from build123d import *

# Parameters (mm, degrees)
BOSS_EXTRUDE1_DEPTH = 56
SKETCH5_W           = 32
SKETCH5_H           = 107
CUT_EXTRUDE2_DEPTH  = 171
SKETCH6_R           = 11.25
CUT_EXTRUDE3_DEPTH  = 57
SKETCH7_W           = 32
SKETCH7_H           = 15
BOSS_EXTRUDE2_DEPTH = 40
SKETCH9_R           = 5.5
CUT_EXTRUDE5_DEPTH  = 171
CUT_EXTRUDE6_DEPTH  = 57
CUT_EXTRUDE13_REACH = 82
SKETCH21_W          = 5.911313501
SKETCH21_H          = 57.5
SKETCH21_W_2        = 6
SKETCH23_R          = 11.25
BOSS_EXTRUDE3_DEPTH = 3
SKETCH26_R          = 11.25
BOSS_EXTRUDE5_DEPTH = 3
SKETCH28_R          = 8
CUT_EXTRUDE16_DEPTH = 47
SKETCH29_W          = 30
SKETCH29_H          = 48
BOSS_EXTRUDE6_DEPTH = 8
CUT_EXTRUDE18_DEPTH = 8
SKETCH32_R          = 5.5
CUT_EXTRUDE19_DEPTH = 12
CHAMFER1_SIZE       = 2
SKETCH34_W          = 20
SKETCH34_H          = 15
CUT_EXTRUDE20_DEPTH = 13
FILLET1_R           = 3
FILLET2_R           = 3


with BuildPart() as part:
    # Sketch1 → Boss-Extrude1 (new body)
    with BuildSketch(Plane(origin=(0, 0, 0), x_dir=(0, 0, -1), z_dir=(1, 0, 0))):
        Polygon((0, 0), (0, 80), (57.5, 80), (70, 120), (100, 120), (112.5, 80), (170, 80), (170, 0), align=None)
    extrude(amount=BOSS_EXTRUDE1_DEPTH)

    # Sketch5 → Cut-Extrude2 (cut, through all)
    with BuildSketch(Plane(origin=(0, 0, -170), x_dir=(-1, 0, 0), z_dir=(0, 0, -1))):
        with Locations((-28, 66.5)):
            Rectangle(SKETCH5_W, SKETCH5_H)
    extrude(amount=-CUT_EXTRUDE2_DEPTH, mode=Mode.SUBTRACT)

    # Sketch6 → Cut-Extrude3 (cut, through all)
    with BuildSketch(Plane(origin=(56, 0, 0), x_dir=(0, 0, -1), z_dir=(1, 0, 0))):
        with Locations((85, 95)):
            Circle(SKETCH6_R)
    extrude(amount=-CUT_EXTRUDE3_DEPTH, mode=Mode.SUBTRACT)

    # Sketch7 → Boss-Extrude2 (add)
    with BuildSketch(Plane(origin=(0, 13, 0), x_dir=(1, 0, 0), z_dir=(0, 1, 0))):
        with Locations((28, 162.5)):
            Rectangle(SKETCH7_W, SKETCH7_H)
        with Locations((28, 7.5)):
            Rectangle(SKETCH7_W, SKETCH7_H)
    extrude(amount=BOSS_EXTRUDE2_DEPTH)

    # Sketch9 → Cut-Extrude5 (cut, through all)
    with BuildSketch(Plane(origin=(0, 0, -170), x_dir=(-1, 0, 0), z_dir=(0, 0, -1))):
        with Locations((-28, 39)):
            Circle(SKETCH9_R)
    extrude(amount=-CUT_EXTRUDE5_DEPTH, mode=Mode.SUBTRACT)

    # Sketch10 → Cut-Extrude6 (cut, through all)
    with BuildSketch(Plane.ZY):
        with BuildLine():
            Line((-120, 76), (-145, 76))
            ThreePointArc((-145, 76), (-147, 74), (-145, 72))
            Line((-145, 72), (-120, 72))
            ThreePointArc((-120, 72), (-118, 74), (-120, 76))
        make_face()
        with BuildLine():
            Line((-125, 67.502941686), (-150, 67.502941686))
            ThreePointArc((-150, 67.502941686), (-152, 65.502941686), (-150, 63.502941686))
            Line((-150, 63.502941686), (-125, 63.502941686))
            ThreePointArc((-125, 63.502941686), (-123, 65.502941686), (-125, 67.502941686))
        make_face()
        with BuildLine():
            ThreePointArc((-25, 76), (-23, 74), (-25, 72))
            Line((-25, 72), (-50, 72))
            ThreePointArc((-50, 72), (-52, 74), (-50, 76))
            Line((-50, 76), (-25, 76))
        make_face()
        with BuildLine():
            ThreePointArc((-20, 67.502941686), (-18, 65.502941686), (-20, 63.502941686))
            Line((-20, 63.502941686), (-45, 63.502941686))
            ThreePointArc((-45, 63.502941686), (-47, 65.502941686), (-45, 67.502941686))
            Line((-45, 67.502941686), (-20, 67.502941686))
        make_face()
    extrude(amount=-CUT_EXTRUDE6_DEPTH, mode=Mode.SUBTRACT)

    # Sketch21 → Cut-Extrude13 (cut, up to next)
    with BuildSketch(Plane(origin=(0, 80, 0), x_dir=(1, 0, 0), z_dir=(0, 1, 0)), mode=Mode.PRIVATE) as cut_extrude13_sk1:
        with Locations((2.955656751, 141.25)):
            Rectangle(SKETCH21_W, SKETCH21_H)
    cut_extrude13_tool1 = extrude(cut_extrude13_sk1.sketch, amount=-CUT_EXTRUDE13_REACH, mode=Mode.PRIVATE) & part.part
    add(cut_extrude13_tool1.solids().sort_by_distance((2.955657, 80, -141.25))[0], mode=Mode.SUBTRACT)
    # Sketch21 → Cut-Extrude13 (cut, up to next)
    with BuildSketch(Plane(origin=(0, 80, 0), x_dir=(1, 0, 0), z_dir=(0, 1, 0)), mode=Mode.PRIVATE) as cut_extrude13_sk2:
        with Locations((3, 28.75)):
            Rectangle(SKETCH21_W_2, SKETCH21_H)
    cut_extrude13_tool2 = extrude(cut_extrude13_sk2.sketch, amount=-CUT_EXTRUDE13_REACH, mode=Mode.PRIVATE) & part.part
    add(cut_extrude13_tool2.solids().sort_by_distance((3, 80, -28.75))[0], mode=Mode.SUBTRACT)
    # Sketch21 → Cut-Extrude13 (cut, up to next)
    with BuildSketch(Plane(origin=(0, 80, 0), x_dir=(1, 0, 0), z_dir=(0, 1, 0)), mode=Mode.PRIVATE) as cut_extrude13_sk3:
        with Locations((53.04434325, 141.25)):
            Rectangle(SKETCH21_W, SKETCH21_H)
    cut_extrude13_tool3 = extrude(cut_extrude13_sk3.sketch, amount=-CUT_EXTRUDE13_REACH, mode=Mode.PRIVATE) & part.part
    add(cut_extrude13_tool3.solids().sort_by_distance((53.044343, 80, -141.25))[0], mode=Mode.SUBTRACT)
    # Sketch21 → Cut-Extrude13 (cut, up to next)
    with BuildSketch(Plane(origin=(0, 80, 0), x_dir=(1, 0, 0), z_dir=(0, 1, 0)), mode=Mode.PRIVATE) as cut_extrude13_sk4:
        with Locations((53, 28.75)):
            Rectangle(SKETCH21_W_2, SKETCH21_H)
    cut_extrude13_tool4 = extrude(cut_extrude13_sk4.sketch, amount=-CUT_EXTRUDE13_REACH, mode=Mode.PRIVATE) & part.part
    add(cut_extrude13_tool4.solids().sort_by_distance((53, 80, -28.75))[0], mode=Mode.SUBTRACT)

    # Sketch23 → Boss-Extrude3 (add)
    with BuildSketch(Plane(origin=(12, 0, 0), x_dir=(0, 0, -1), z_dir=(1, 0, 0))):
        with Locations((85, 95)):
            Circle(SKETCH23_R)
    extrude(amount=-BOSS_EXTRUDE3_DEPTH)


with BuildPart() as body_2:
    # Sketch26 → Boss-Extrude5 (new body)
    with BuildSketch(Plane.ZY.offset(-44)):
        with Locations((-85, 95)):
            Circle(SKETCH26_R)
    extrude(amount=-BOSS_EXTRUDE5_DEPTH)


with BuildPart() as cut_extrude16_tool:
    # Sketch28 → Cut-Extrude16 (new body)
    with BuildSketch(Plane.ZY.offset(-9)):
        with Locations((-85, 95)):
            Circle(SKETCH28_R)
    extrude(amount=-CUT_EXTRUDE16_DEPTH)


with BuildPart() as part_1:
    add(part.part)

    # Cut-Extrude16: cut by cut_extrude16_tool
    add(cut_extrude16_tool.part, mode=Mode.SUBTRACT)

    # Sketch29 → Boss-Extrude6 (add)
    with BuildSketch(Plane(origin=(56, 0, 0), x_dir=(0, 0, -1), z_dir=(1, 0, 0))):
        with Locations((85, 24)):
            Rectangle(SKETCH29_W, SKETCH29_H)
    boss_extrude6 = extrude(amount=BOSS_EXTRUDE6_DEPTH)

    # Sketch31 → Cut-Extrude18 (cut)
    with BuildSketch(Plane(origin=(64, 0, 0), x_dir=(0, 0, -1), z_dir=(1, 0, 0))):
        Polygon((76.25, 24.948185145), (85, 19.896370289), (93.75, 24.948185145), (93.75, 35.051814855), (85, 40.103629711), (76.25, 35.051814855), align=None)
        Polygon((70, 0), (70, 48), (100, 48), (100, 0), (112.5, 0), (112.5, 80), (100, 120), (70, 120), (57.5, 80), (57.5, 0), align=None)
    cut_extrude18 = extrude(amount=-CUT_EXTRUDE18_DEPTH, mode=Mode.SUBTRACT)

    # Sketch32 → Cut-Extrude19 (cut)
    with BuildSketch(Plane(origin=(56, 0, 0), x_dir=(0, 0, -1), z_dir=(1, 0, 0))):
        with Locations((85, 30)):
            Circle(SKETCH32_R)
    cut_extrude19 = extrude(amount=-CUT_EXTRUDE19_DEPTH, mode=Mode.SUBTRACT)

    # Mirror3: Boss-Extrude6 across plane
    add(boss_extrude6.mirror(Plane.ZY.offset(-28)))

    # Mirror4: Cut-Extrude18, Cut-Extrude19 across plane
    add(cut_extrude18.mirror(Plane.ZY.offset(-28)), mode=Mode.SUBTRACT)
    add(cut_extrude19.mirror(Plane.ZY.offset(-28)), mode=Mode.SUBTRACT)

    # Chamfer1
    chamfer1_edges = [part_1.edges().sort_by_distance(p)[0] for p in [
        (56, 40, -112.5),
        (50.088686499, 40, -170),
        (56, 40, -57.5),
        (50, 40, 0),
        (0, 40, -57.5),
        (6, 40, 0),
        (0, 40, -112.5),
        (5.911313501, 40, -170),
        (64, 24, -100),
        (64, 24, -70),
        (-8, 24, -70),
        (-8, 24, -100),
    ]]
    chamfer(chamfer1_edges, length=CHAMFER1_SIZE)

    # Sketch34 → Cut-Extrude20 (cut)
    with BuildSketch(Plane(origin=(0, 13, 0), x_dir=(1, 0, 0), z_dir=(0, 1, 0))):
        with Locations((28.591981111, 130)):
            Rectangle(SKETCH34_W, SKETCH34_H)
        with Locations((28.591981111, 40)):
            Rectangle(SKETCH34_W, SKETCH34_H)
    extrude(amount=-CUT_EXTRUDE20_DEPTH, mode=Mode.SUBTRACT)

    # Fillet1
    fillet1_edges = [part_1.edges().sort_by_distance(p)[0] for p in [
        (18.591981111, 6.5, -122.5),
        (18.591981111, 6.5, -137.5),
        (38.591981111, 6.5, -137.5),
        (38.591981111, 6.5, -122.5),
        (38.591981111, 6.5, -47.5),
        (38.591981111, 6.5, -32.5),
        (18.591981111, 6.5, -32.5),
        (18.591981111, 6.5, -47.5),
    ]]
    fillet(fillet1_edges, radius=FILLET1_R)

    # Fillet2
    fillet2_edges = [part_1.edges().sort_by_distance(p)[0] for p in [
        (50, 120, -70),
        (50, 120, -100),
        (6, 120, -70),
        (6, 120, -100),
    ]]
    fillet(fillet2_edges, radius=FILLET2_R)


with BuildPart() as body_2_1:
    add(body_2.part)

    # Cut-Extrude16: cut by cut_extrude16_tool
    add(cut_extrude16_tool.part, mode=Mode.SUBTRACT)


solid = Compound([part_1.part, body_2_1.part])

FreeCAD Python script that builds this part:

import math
import FreeCAD as App
import Part
import Sketcher
from FreeCAD import Vector
Q = App.Units.Quantity


def edges_at(feature, points):
    """Names of the edges that pass closest to the given points."""
    edges = feature.Shape.Edges
    near = lambda p: min(range(len(edges)), key=lambda i: edges[i].distToShape(Part.Vertex(*p))[0])
    return sorted({f"Edge{near(p) + 1}" for p in points})

doc = App.newDocument("Part")
body = doc.addObject("PartDesign::Body", "Body")

sketch1 = doc.addObject("Sketcher::SketchObject", "Sketch")
body.addObject(sketch1)
sketch1.AttachmentSupport = (doc.YZ_Plane, [""])
sketch1.MapMode = "FlatFace"
sketch1.addGeometry(Part.LineSegment(Vector(80, 0, 0), Vector(0, 0, 0)), False)
sketch1.addGeometry(Part.LineSegment(Vector(0, 0, 0), Vector(0, -170, 0)), False)
sketch1.addGeometry(Part.LineSegment(Vector(0, -170, 0), Vector(80, -170, 0)), False)
sketch1.addGeometry(Part.LineSegment(Vector(80, -170, 0), Vector(80, -112, 0)), False)
sketch1.addGeometry(Part.LineSegment(Vector(80, -112, 0), Vector(120, -100, 0)), False)
sketch1.addGeometry(Part.LineSegment(Vector(120, -100, 0), Vector(120, -70, 0)), False)
sketch1.addGeometry(Part.LineSegment(Vector(120, -70, 0), Vector(80, -58, 0)), False)
sketch1.addGeometry(Part.LineSegment(Vector(80, -58, 0), Vector(80, 0, 0)), False)
sketch1.addConstraint(Sketcher.Constraint("Coincident", 0, 2, 1, 1))
sketch1.addConstraint(Sketcher.Constraint("Coincident", 1, 2, 2, 1))
sketch1.addConstraint(Sketcher.Constraint("Coincident", 2, 2, 3, 1))
sketch1.addConstraint(Sketcher.Constraint("Coincident", 3, 2, 4, 1))
sketch1.addConstraint(Sketcher.Constraint("Coincident", 4, 2, 5, 1))
sketch1.addConstraint(Sketcher.Constraint("Coincident", 5, 2, 6, 1))
sketch1.addConstraint(Sketcher.Constraint("Coincident", 6, 2, 7, 1))
sketch1.addConstraint(Sketcher.Constraint("Coincident", 7, 2, 0, 1))
sketch1.addConstraint(Sketcher.Constraint("Horizontal", 0))
sketch1.addConstraint(Sketcher.Constraint("Vertical", 1))
sketch1.addConstraint(Sketcher.Constraint("Horizontal", 2))
sketch1.addConstraint(Sketcher.Constraint("Vertical", 3))
sketch1.addConstraint(Sketcher.Constraint("Vertical", 5))
sketch1.addConstraint(Sketcher.Constraint("Vertical", 7))
sketch1.addConstraint(Sketcher.Constraint("Coincident", 0, 2, -1, 1))
sketch1.addConstraint(Sketcher.Constraint("Vertical", 3, 2, 6, 2))
sketch1.addConstraint(Sketcher.Constraint("Equal", 3, 7))
sketch1.addConstraint(Sketcher.Constraint("Equal", 4, 6))
sketch1.addConstraint(Sketcher.Constraint("DistanceX", 0, 2, 0, 1, 80.0))
sketch1.addConstraint(Sketcher.Constraint("DistanceY", 1, 2, 1, 1, 170.0))
sketch1.addConstraint(Sketcher.Constraint("DistanceY", 5, 1, 5, 2, 30.0))
sketch1.addConstraint(Sketcher.Constraint("DistanceY", 3, 1, 3, 2, 57.5))
sketch1.addConstraint(Sketcher.Constraint("DistanceX", -1, 1, 4, 2, 120.0))
pad1 = doc.addObject("PartDesign::Pad", "Pad")
body.addObject(pad1)
pad1.Profile = sketch1
pad1.Length = 56

sketch2 = doc.addObject("Sketcher::SketchObject", "Sketch001")
body.addObject(sketch2)
sketch2.AttachmentSupport = (doc.XY_Plane, [""])
sketch2.MapMode = "FlatFace"
sketch2.AttachmentOffset = App.Placement(Vector(0, 0, -170), App.Rotation())
sketch2.addGeometry(Part.LineSegment(Vector(44, 120, 0), Vector(44, 13, 0)), False)
sketch2.addGeometry(Part.LineSegment(Vector(44, 13, 0), Vector(12, 13, 0)), False)
sketch2.addGeometry(Part.LineSegment(Vector(12, 13, 0), Vector(12, 120, 0)), False)
sketch2.addGeometry(Part.LineSegment(Vector(12, 120, 0), Vector(44, 120, 0)), False)
sketch2.addConstraint(Sketcher.Constraint("Coincident", 0, 2, 1, 1))
sketch2.addConstraint(Sketcher.Constraint("Coincident", 1, 2, 2, 1))
sketch2.addConstraint(Sketcher.Constraint("Coincident", 2, 2, 3, 1))
sketch2.addConstraint(Sketcher.Constraint("Coincident", 3, 2, 0, 1))
sketch2.addConstraint(Sketcher.Constraint("Vertical", 0))
sketch2.addConstraint(Sketcher.Constraint("Horizontal", 1))
sketch2.addConstraint(Sketcher.Constraint("Vertical", 2))
sketch2.addConstraint(Sketcher.Constraint("Horizontal", 3))
sketch2.addConstraint(Sketcher.Constraint("DistanceX", 1, 2, 1, 1, 32.0))
sketch2.addConstraint(Sketcher.Constraint("DistanceY", 0, 2, 0, 1, 107.0))
sketch2.addConstraint(Sketcher.Constraint("DistanceX", -1, 1, 0, 2, 44.0))
sketch2.addConstraint(Sketcher.Constraint("DistanceY", -1, 1, 0, 2, 13.0))
pocket1 = doc.addObject("PartDesign::Pocket", "Pocket")
body.addObject(pocket1)
pocket1.Profile = sketch2
pocket1.Type = "ThroughAll"
pocket1.Reversed = True

sketch3 = doc.addObject("Sketcher::SketchObject", "Sketch002")
body.addObject(sketch3)
sketch3.AttachmentSupport = (doc.YZ_Plane, [""])
sketch3.MapMode = "FlatFace"
sketch3.AttachmentOffset = App.Placement(Vector(0, 0, 56), App.Rotation())
sketch3.addGeometry(Part.Circle(Vector(95, -85, 0), Vector(0, 0, 1), 11), False)
sketch3.addConstraint(Sketcher.Constraint("Diameter", 0, 22.5))
sketch3.addConstraint(Sketcher.Constraint("DistanceX", -1, 1, 0, 3, 95.0))
sketch3.addConstraint(Sketcher.Constraint("DistanceY", 0, 3, -1, 1, 85.0))
pocket2 = doc.addObject("PartDesign::Pocket", "Pocket001")
body.addObject(pocket2)
pocket2.Profile = sketch3
pocket2.Type = "ThroughAll"

sketch4 = doc.addObject("Sketcher::SketchObject", "Sketch003")
body.addObject(sketch4)
sketch4.AttachmentSupport = (doc.XZ_Plane, [""])
sketch4.MapMode = "FlatFace"
sketch4.AttachmentOffset = App.Placement(Vector(0, 0, -13), App.Rotation())
sketch4.addGeometry(Part.LineSegment(Vector(12, -170, 0), Vector(12, -155, 0)), False)
sketch4.addGeometry(Part.LineSegment(Vector(12, -155, 0), Vector(44, -155, 0)), False)
sketch4.addGeometry(Part.LineSegment(Vector(44, -155, 0), Vector(44, -170, 0)), False)
sketch4.addGeometry(Part.LineSegment(Vector(44, -170, 0), Vector(12, -170, 0)), False)
sketch4.addGeometry(Part.LineSegment(Vector(12, -15, 0), Vector(12, 0, 0)), False)
sketch4.addGeometry(Part.LineSegment(Vector(12, 0, 0), Vector(44, 0, 0)), False)
sketch4.addGeometry(Part.LineSegment(Vector(44, 0, 0), Vector(44, -15, 0)), False)
sketch4.addGeometry(Part.LineSegment(Vector(44, -15, 0), Vector(12, -15, 0)), False)
sketch4.addConstraint(Sketcher.Constraint("Coincident", 0, 2, 1, 1))
sketch4.addConstraint(Sketcher.Constraint("Coincident", 1, 2, 2, 1))
sketch4.addConstraint(Sketcher.Constraint("Coincident", 2, 2, 3, 1))
sketch4.addConstraint(Sketcher.Constraint("Coincident", 3, 2, 0, 1))
sketch4.addConstraint(Sketcher.Constraint("Coincident", 4, 2, 5, 1))
sketch4.addConstraint(Sketcher.Constraint("Coincident", 5, 2, 6, 1))
sketch4.addConstraint(Sketcher.Constraint("Coincident", 6, 2, 7, 1))
sketch4.addConstraint(Sketcher.Constraint("Coincident", 7, 2, 4, 1))
sketch4.addConstraint(Sketcher.Constraint("Vertical", 0))
sketch4.addConstraint(Sketcher.Constraint("Horizontal", 1))
sketch4.addConstraint(Sketcher.Constraint("Vertical", 2))
sketch4.addConstraint(Sketcher.Constraint("Horizontal", 3))
sketch4.addConstraint(Sketcher.Constraint("Vertical", 4))
sketch4.addConstraint(Sketcher.Constraint("Horizontal", 5))
sketch4.addConstraint(Sketcher.Constraint("Vertical", 6))
sketch4.addConstraint(Sketcher.Constraint("Horizontal", 7))
sketch4.addConstraint(Sketcher.Constraint("PointOnObject", 4, 2, -1))
sketch4.addConstraint(Sketcher.Constraint("Vertical", 3, 2, 4, 2))
sketch4.addConstraint(Sketcher.Constraint("Vertical", 2, 2, 5, 2))
sketch4.addConstraint(Sketcher.Constraint("Equal", 2, 4))
sketch4.addConstraint(Sketcher.Constraint("DistanceX", 1, 1, 1, 2, 32.0))
sketch4.addConstraint(Sketcher.Constraint("DistanceY", 0, 1, 0, 2, 15.0))
sketch4.addConstraint(Sketcher.Constraint("DistanceX", -1, 1, 0, 2, 12.0))
sketch4.addConstraint(Sketcher.Constraint("DistanceY", 0, 2, -1, 1, 155.0))
pad2 = doc.addObject("PartDesign::Pad", "Pad001")
body.addObject(pad2)
pad2.Profile = sketch4
pad2.Length = 40
pad2.Reversed = True

sketch5 = doc.addObject("Sketcher::SketchObject", "Sketch004")
body.addObject(sketch5)
sketch5.AttachmentSupport = (doc.XY_Plane, [""])
sketch5.MapMode = "FlatFace"
sketch5.AttachmentOffset = App.Placement(Vector(0, 0, -170), App.Rotation())
sketch5.addGeometry(Part.Circle(Vector(28, 39, 0), Vector(0, 0, 1), 6), False)
sketch5.addConstraint(Sketcher.Constraint("Diameter", 0, 11.0))
sketch5.addConstraint(Sketcher.Constraint("DistanceX", -1, 1, 0, 3, 28.0))
sketch5.addConstraint(Sketcher.Constraint("DistanceY", -1, 1, 0, 3, 39.0))
pocket3 = doc.addObject("PartDesign::Pocket", "Pocket002")
body.addObject(pocket3)
pocket3.Profile = sketch5
pocket3.Type = "ThroughAll"
pocket3.Reversed = True

sketch6 = doc.addObject("Sketcher::SketchObject", "Sketch005")
body.addObject(sketch6)
sketch6.AttachmentSupport = (doc.YZ_Plane, [""])
sketch6.MapMode = "FlatFace"
sketch6.addGeometry(Part.LineSegment(Vector(76, -120, 0), Vector(76, -145, 0)), False)
sketch6.addGeometry(Part.ArcOfCircle(Part.Circle(Vector(74, -145, 0), Vector(0, 0, 1), 2), math.radians(180), math.radians(360)), False)
sketch6.addGeometry(Part.LineSegment(Vector(72, -145, 0), Vector(72, -120, 0)), False)
sketch6.addGeometry(Part.ArcOfCircle(Part.Circle(Vector(74, -120, 0), Vector(0, 0, 1), 2), math.radians(0), math.radians(180)), False)
sketch6.addGeometry(Part.LineSegment(Vector(67.5, -125, 0), Vector(67.5, -150, 0)), False)
sketch6.addGeometry(Part.ArcOfCircle(Part.Circle(Vector(65.5, -150, 0), Vector(0, 0, 1), 2), math.radians(180), math.radians(360)), False)
sketch6.addGeometry(Part.LineSegment(Vector(63.5, -150, 0), Vector(63.5, -125, 0)), False)
sketch6.addGeometry(Part.ArcOfCircle(Part.Circle(Vector(65.5, -125, 0), Vector(0, 0, 1), 2), math.radians(0), math.radians(180)), False)
sketch6.addGeometry(Part.ArcOfCircle(Part.Circle(Vector(74, -25, 0), Vector(0, 0, 1), 2), math.radians(0), math.radians(180)), False)
sketch6.addGeometry(Part.LineSegment(Vector(76, -25, 0), Vector(76, -50, 0)), False)
sketch6.addGeometry(Part.ArcOfCircle(Part.Circle(Vector(74, -50, 0), Vector(0, 0, 1), 2), math.radians(180), math.radians(360)), False)
sketch6.addGeometry(Part.LineSegment(Vector(72, -50, 0), Vector(72, -25, 0)), False)
sketch6.addGeometry(Part.ArcOfCircle(Part.Circle(Vector(65.5, -20, 0), Vector(0, 0, 1), 2), math.radians(0), math.radians(180)), False)
sketch6.addGeometry(Part.LineSegment(Vector(67.5, -20, 0), Vector(67.5, -45, 0)), False)
sketch6.addGeometry(Part.ArcOfCircle(Part.Circle(Vector(65.5, -45, 0), Vector(0, 0, 1), 2), math.radians(180), math.radians(360)), False)
sketch6.addGeometry(Part.LineSegment(Vector(63.5, -45, 0), Vector(63.5, -20, 0)), False)
sketch6.addConstraint(Sketcher.Constraint("Tangent", 0, 2, 1, 2))
sketch6.addConstraint(Sketcher.Constraint("Tangent", 1, 1, 2, 1))
sketch6.addConstraint(Sketcher.Constraint("Tangent", 2, 2, 3, 2))
sketch6.addConstraint(Sketcher.Constraint("Tangent", 3, 1, 0, 1))
sketch6.addConstraint(Sketcher.Constraint("Tangent", 4, 2, 5, 2))
sketch6.addConstraint(Sketcher.Constraint("Tangent", 5, 1, 6, 1))
sketch6.addConstraint(Sketcher.Constraint("Tangent", 6, 2, 7, 2))
sketch6.addConstraint(Sketcher.Constraint("Tangent", 7, 1, 4, 1))
sketch6.addConstraint(Sketcher.Constraint("Tangent", 8, 1, 9, 1))
sketch6.addConstraint(Sketcher.Constraint("Tangent", 9, 2, 10, 2))
sketch6.addConstraint(Sketcher.Constraint("Tangent", 10, 1, 11, 1))
sketch6.addConstraint(Sketcher.Constraint("Tangent", 11, 2, 8, 2))
sketch6.addConstraint(Sketcher.Constraint("Tangent", 12, 1, 13, 1))
sketch6.addConstraint(Sketcher.Constraint("Tangent", 13, 2, 14, 2))
sketch6.addConstraint(Sketcher.Constraint("Tangent", 14, 1, 15, 1))
sketch6.addConstraint(Sketcher.Constraint("Tangent", 15, 2, 12, 2))
sketch6.addConstraint(Sketcher.Constraint("Vertical", 0))
sketch6.addConstraint(Sketcher.Constraint("Vertical", 2))
sketch6.addConstraint(Sketcher.Constraint("Vertical", 4))
sketch6.addConstraint(Sketcher.Constraint("Vertical", 6))
sketch6.addConstraint(Sketcher.Constraint("Vertical", 9))
sketch6.addConstraint(Sketcher.Constraint("Vertical", 11))
sketch6.addConstraint(Sketcher.Constraint("Vertical", 13))
sketch6.addConstraint(Sketcher.Constraint("Vertical", 15))
sketch6.addConstraint(Sketcher.Constraint("Equal", 3, 5))
sketch6.addConstraint(Sketcher.Constraint("Equal", 7, 8))
sketch6.addConstraint(Sketcher.Constraint("Equal", 10, 12))
sketch6.addConstraint(Sketcher.Constraint("Vertical", 3, 3, 8, 3))
sketch6.addConstraint(Sketcher.Constraint("Vertical", 7, 3, 12, 3))
sketch6.addConstraint(Sketcher.Constraint("Equal", 2, 4))
sketch6.addConstraint(Sketcher.Constraint("Equal", 6, 9))
sketch6.addConstraint(Sketcher.Constraint("Equal", 11, 13))
sketch6.addConstraint(Sketcher.Constraint("Radius", 1, 2.0))
sketch6.addConstraint(Sketcher.Constraint("DistanceY", 0, 2, 0, 1, 25.0))
sketch6.addConstraint(Sketcher.Constraint("DistanceX", -1, 1, 1, 3, 74.0))
sketch6.addConstraint(Sketcher.Constraint("DistanceY", 1, 3, -1, 1, 145.0))
sketch6.addConstraint(Sketcher.Constraint("DistanceY", 5, 3, -1, 1, 150.0))
sketch6.addConstraint(Sketcher.Constraint("DistanceY", 8, 3, -1, 1, 25.0))
sketch6.addConstraint(Sketcher.Constraint("DistanceY", 12, 3, -1, 1, 20.0))
sketch6.addConstraint(Sketcher.Constraint("DistanceX", -1, 1, 5, 3, 65.502942))
pocket4 = doc.addObject("PartDesign::Pocket", "Pocket003")
body.addObject(pocket4)
pocket4.Profile = sketch6
pocket4.Type = "ThroughAll"
pocket4.Reversed = True

sketch7 = doc.addObject("Sketcher::SketchObject", "Sketch006")
body.addObject(sketch7)
sketch7.AttachmentSupport = (doc.XZ_Plane, [""])
sketch7.MapMode = "FlatFace"
sketch7.AttachmentOffset = App.Placement(Vector(0, 0, -80), App.Rotation())
sketch7.addGeometry(Part.LineSegment(Vector(0, -170, 0), Vector(0, -112, 0)), False)
sketch7.addGeometry(Part.LineSegment(Vector(0, -112, 0), Vector(6, -112, 0)), False)
sketch7.addGeometry(Part.LineSegment(Vector(6, -112, 0), Vector(6, -170, 0)), False)
sketch7.addGeometry(Part.LineSegment(Vector(6, -170, 0), Vector(0, -170, 0)), False)
sketch7.addConstraint(Sketcher.Constraint("Coincident", 0, 2, 1, 1))
sketch7.addConstraint(Sketcher.Constraint("Coincident", 1, 2, 2, 1))
sketch7.addConstraint(Sketcher.Constraint("Coincident", 2, 2, 3, 1))
sketch7.addConstraint(Sketcher.Constraint("Coincident", 3, 2, 0, 1))
sketch7.addConstraint(Sketcher.Constraint("Vertical", 0))
sketch7.addConstraint(Sketcher.Constraint("Horizontal", 1))
sketch7.addConstraint(Sketcher.Constraint("Vertical", 2))
sketch7.addConstraint(Sketcher.Constraint("Horizontal", 3))
sketch7.addConstraint(Sketcher.Constraint("PointOnObject", 0, 2, -2))
sketch7.addConstraint(Sketcher.Constraint("DistanceY", 0, 1, 0, 2, 57.5))
sketch7.addConstraint(Sketcher.Constraint("DistanceY", 2, 2, -1, 1, 170.0))
sketch7.addConstraint(Sketcher.Constraint("DistanceX", 1, 1, 1, 2, 5.911314))
pocket5 = doc.addObject("PartDesign::Pocket", "Pocket004")
body.addObject(pocket5)
pocket5.Profile = sketch7
pocket5.Length = 80
pocket5.Reversed = True

sketch8 = doc.addObject("Sketcher::SketchObject", "Sketch007")
body.addObject(sketch8)
sketch8.AttachmentSupport = (doc.XZ_Plane, [""])
sketch8.MapMode = "FlatFace"
sketch8.AttachmentOffset = App.Placement(Vector(0, 0, -80), App.Rotation())
sketch8.addGeometry(Part.LineSegment(Vector(0, -58, 0), Vector(0, 0, 0)), False)
sketch8.addGeometry(Part.LineSegment(Vector(0, 0, 0), Vector(6, 0, 0)), False)
sketch8.addGeometry(Part.LineSegment(Vector(6, 0, 0), Vector(6, -58, 0)), False)
sketch8.addGeometry(Part.LineSegment(Vector(6, -58, 0), Vector(0, -58, 0)), False)
sketch8.addConstraint(Sketcher.Constraint("Coincident", 0, 2, 1, 1))
sketch8.addConstraint(Sketcher.Constraint("Coincident", 1, 2, 2, 1))
sketch8.addConstraint(Sketcher.Constraint("Coincident", 2, 2, 3, 1))
sketch8.addConstraint(Sketcher.Constraint("Coincident", 3, 2, 0, 1))
sketch8.addConstraint(Sketcher.Constraint("Vertical", 0))
sketch8.addConstraint(Sketcher.Constraint("Horizontal", 1))
sketch8.addConstraint(Sketcher.Constraint("Vertical", 2))
sketch8.addConstraint(Sketcher.Constraint("Horizontal", 3))
sketch8.addConstraint(Sketcher.Constraint("Coincident", 0, 2, -1, 1))
sketch8.addConstraint(Sketcher.Constraint("DistanceX", 1, 1, 1, 2, 6.0))
sketch8.addConstraint(Sketcher.Constraint("DistanceY", 0, 1, 0, 2, 57.5))
pocket6 = doc.addObject("PartDesign::Pocket", "Pocket005")
body.addObject(pocket6)
pocket6.Profile = sketch8
pocket6.Length = 80
pocket6.Reversed = True

sketch9 = doc.addObject("Sketcher::SketchObject", "Sketch008")
body.addObject(sketch9)
sketch9.AttachmentSupport = (doc.XZ_Plane, [""])
sketch9.MapMode = "FlatFace"
sketch9.AttachmentOffset = App.Placement(Vector(0, 0, -80), App.Rotation())
sketch9.addGeometry(Part.LineSegment(Vector(50, -170, 0), Vector(50, -112, 0)), False)
sketch9.addGeometry(Part.LineSegment(Vector(50, -112, 0), Vector(56, -112, 0)), False)
sketch9.addGeometry(Part.LineSegment(Vector(56, -112, 0), Vector(56, -170, 0)), False)
sketch9.addGeometry(Part.LineSegment(Vector(56, -170, 0), Vector(50, -170, 0)), False)
sketch9.addConstraint(Sketcher.Constraint("Coincident", 0, 2, 1, 1))
sketch9.addConstraint(Sketcher.Constraint("Coincident", 1, 2, 2, 1))
sketch9.addConstraint(Sketcher.Constraint("Coincident", 2, 2, 3, 1))
sketch9.addConstraint(Sketcher.Constraint("Coincident", 3, 2, 0, 1))
sketch9.addConstraint(Sketcher.Constraint("Vertical", 0))
sketch9.addConstraint(Sketcher.Constraint("Horizontal", 1))
sketch9.addConstraint(Sketcher.Constraint("Vertical", 2))
sketch9.addConstraint(Sketcher.Constraint("Horizontal", 3))
sketch9.addConstraint(Sketcher.Constraint("DistanceY", 0, 1, 0, 2, 57.5))
sketch9.addConstraint(Sketcher.Constraint("DistanceX", -1, 1, 1, 2, 56.0))
sketch9.addConstraint(Sketcher.Constraint("DistanceY", 2, 2, -1, 1, 170.0))
sketch9.addConstraint(Sketcher.Constraint("DistanceX", 1, 1, 1, 2, 5.911314))
pocket7 = doc.addObject("PartDesign::Pocket", "Pocket006")
body.addObject(pocket7)
pocket7.Profile = sketch9
pocket7.Length = 80
pocket7.Reversed = True

sketch10 = doc.addObject("Sketcher::SketchObject", "Sketch009")
body.addObject(sketch10)
sketch10.AttachmentSupport = (doc.XZ_Plane, [""])
sketch10.MapMode = "FlatFace"
sketch10.AttachmentOffset = App.Placement(Vector(0, 0, -80), App.Rotation())
sketch10.addGeometry(Part.LineSegment(Vector(50, -58, 0), Vector(50, 0, 0)), False)
sketch10.addGeometry(Part.LineSegment(Vector(50, 0, 0), Vector(56, 0, 0)), False)
sketch10.addGeometry(Part.LineSegment(Vector(56, 0, 0), Vector(56, -58, 0)), False)
sketch10.addGeometry(Part.LineSegment(Vector(56, -58, 0), Vector(50, -58, 0)), False)
sketch10.addConstraint(Sketcher.Constraint("Coincident", 0, 2, 1, 1))
sketch10.addConstraint(Sketcher.Constraint("Coincident", 1, 2, 2, 1))
sketch10.addConstraint(Sketcher.Constraint("Coincident", 2, 2, 3, 1))
sketch10.addConstraint(Sketcher.Constraint("Coincident", 3, 2, 0, 1))
sketch10.addConstraint(Sketcher.Constraint("Vertical", 0))
sketch10.addConstraint(Sketcher.Constraint("Horizontal", 1))
sketch10.addConstraint(Sketcher.Constraint("Vertical", 2))
sketch10.addConstraint(Sketcher.Constraint("Horizontal", 3))
sketch10.addConstraint(Sketcher.Constraint("PointOnObject", 0, 2, -1))
sketch10.addConstraint(Sketcher.Constraint("DistanceX", 1, 1, 1, 2, 6.0))
sketch10.addConstraint(Sketcher.Constraint("DistanceY", 0, 1, 0, 2, 57.5))
sketch10.addConstraint(Sketcher.Constraint("DistanceX", -1, 1, 0, 2, 50.0))
pocket8 = doc.addObject("PartDesign::Pocket", "Pocket007")
body.addObject(pocket8)
pocket8.Profile = sketch10
pocket8.Length = 80
pocket8.Reversed = True

sketch11 = doc.addObject("Sketcher::SketchObject", "Sketch010")
body.addObject(sketch11)
sketch11.AttachmentSupport = (doc.YZ_Plane, [""])
sketch11.MapMode = "FlatFace"
sketch11.AttachmentOffset = App.Placement(Vector(0, 0, 12), App.Rotation())
sketch11.addGeometry(Part.Circle(Vector(95, -85, 0), Vector(0, 0, 1), 11), False)
sketch11.addConstraint(Sketcher.Constraint("Diameter", 0, 22.5))
sketch11.addConstraint(Sketcher.Constraint("DistanceX", -1, 1, 0, 3, 95.0))
sketch11.addConstraint(Sketcher.Constraint("DistanceY", 0, 3, -1, 1, 85.0))
pad3 = doc.addObject("PartDesign::Pad", "Pad002")
body.addObject(pad3)
pad3.Profile = sketch11
pad3.Length = 3
pad3.Reversed = True
body2 = doc.addObject("PartDesign::Body", "Body001")

sketch12 = doc.addObject("Sketcher::SketchObject", "Sketch011")
body2.addObject(sketch12)
sketch12.AttachmentSupport = (doc.getObject("YZ_Plane001"), [""])
sketch12.MapMode = "FlatFace"
sketch12.AttachmentOffset = App.Placement(Vector(0, 0, 44), App.Rotation())
sketch12.addGeometry(Part.Circle(Vector(95, -85, 0), Vector(0, 0, 1), 11), False)
sketch12.addConstraint(Sketcher.Constraint("Diameter", 0, 22.5))
sketch12.addConstraint(Sketcher.Constraint("DistanceX", -1, 1, 0, 3, 95.0))
sketch12.addConstraint(Sketcher.Constraint("DistanceY", 0, 3, -1, 1, 85.0))
pad4 = doc.addObject("PartDesign::Pad", "Pad003")
body2.addObject(pad4)
pad4.Profile = sketch12
pad4.Length = 3
body3 = doc.addObject("PartDesign::Body", "Body002")

sketch13 = doc.addObject("Sketcher::SketchObject", "Sketch012")
body3.addObject(sketch13)
sketch13.AttachmentSupport = (doc.getObject("YZ_Plane002"), [""])
sketch13.MapMode = "FlatFace"
sketch13.AttachmentOffset = App.Placement(Vector(0, 0, 9), App.Rotation())
sketch13.addGeometry(Part.Circle(Vector(95, -85, 0), Vector(0, 0, 1), 8), False)
sketch13.addConstraint(Sketcher.Constraint("Diameter", 0, 16.0))
sketch13.addConstraint(Sketcher.Constraint("DistanceX", -1, 1, 0, 3, 95.0))
sketch13.addConstraint(Sketcher.Constraint("DistanceY", 0, 3, -1, 1, 85.0))
pad5 = doc.addObject("PartDesign::Pad", "Pad004")
body3.addObject(pad5)
pad5.Profile = sketch13
pad5.Length = 47
doc.recompute()

body4 = doc.addObject("PartDesign::Body", "Body003")
body4.BaseFeature = body3
boolean = doc.addObject("PartDesign::Boolean", "Boolean")
body.addObject(boolean)
boolean.Type = "Cut"
boolean.addObjects([body4])
doc.recompute()

sketch14 = doc.addObject("Sketcher::SketchObject", "Sketch013")
body.addObject(sketch14)
sketch14.AttachmentSupport = (doc.YZ_Plane, [""])
sketch14.MapMode = "FlatFace"
sketch14.AttachmentOffset = App.Placement(Vector(0, 0, 56), App.Rotation())
sketch14.addGeometry(Part.LineSegment(Vector(48, -70, 0), Vector(0, -70, 0)), False)
sketch14.addGeometry(Part.LineSegment(Vector(0, -70, 0), Vector(0, -100, 0)), False)
sketch14.addGeometry(Part.LineSegment(Vector(0, -100, 0), Vector(48, -100, 0)), False)
sketch14.addGeometry(Part.LineSegment(Vector(48, -100, 0), Vector(48, -70, 0)), False)
sketch14.addConstraint(Sketcher.Constraint("Coincident", 0, 2, 1, 1))
sketch14.addConstraint(Sketcher.Constraint("Coincident", 1, 2, 2, 1))
sketch14.addConstraint(Sketcher.Constraint("Coincident", 2, 2, 3, 1))
sketch14.addConstraint(Sketcher.Constraint("Coincident", 3, 2, 0, 1))
sketch14.addConstraint(Sketcher.Constraint("Horizontal", 0))
sketch14.addConstraint(Sketcher.Constraint("Vertical", 1))
sketch14.addConstraint(Sketcher.Constraint("Horizontal", 2))
sketch14.addConstraint(Sketcher.Constraint("Vertical", 3))
sketch14.addConstraint(Sketcher.Constraint("PointOnObject", 0, 2, -2))
sketch14.addConstraint(Sketcher.Constraint("DistanceX", 0, 2, 0, 1, 48.0))
sketch14.addConstraint(Sketcher.Constraint("DistanceY", 1, 2, 1, 1, 30.0))
sketch14.addConstraint(Sketcher.Constraint("DistanceY", 0, 2, -1, 1, 70.0))
pad6 = doc.addObject("PartDesign::Pad", "Pad005")
body.addObject(pad6)
pad6.Profile = sketch14
pad6.Length = 8

sketch15 = doc.addObject("Sketcher::SketchObject", "Sketch014")
body.addObject(sketch15)
sketch15.AttachmentSupport = (doc.YZ_Plane, [""])
sketch15.MapMode = "FlatFace"
sketch15.AttachmentOffset = App.Placement(Vector(0, 0, 64), App.Rotation())
sketch15.addGeometry(Part.LineSegment(Vector(25, -76, 0), Vector(20, -85, 0)), False)
sketch15.addGeometry(Part.LineSegment(Vector(20, -85, 0), Vector(25, -94, 0)), False)
sketch15.addGeometry(Part.LineSegment(Vector(25, -94, 0), Vector(35, -94, 0)), False)
sketch15.addGeometry(Part.LineSegment(Vector(35, -94, 0), Vector(40, -85, 0)), False)
sketch15.addGeometry(Part.LineSegment(Vector(40, -85, 0), Vector(35, -76, 0)), False)
sketch15.addGeometry(Part.LineSegment(Vector(35, -76, 0), Vector(25, -76, 0)), False)
sketch15.addGeometry(Part.LineSegment(Vector(0, -70, 0), Vector(48, -70, 0)), False)
sketch15.addGeometry(Part.LineSegment(Vector(48, -70, 0), Vector(48, -100, 0)), False)
sketch15.addGeometry(Part.LineSegment(Vector(48, -100, 0), Vector(0, -100, 0)), False)
sketch15.addGeometry(Part.LineSegment(Vector(0, -100, 0), Vector(0, -112, 0)), False)
sketch15.addGeometry(Part.LineSegment(Vector(0, -112, 0), Vector(80, -112, 0)), False)
sketch15.addGeometry(Part.LineSegment(Vector(80, -112, 0), Vector(120, -100, 0)), False)
sketch15.addGeometry(Part.LineSegment(Vector(120, -100, 0), Vector(120, -70, 0)), False)
sketch15.addGeometry(Part.LineSegment(Vector(120, -70, 0), Vector(80, -58, 0)), False)
sketch15.addGeometry(Part.LineSegment(Vector(80, -58, 0), Vector(0, -58, 0)), False)
sketch15.addGeometry(Part.LineSegment(Vector(0, -58, 0), Vector(0, -70, 0)), False)
sketch15.addConstraint(Sketcher.Constraint("Coincident", 0, 2, 1, 1))
sketch15.addConstraint(Sketcher.Constraint("Coincident", 1, 2, 2, 1))
sketch15.addConstraint(Sketcher.Constraint("Coincident", 2, 2, 3, 1))
sketch15.addConstraint(Sketcher.Constraint("Coincident", 3, 2, 4, 1))
sketch15.addConstraint(Sketcher.Constraint("Coincident", 4, 2, 5, 1))
sketch15.addConstraint(Sketcher.Constraint("Coincident", 5, 2, 0, 1))
sketch15.addConstraint(Sketcher.Constraint("Coincident", 6, 2, 7, 1))
sketch15.addConstraint(Sketcher.Constraint("Coincident", 7, 2, 8, 1))
sketch15.addConstraint(Sketcher.Constraint("Coincident", 8, 2, 9, 1))
sketch15.addConstraint(Sketcher.Constraint("Coincident", 9, 2, 10, 1))
sketch15.addConstraint(Sketcher.Constraint("Coincident", 10, 2, 11, 1))
sketch15.addConstraint(Sketcher.Constraint("Coincident", 11, 2, 12, 1))
sketch15.addConstraint(Sketcher.Constraint("Coincident", 12, 2, 13, 1))
sketch15.addConstraint(Sketcher.Constraint("Coincident", 13, 2, 14, 1))
sketch15.addConstraint(Sketcher.Constraint("Coincident", 14, 2, 15, 1))
sketch15.addConstraint(Sketcher.Constraint("Coincident", 15, 2, 6, 1))
sketch15.addConstraint(Sketcher.Constraint("Horizontal", 2))
sketch15.addConstraint(Sketcher.Constraint("Horizontal", 5))
sketch15.addConstraint(Sketcher.Constraint("Horizontal", 6))
sketch15.addConstraint(Sketcher.Constraint("Vertical", 7))
sketch15.addConstraint(Sketcher.Constraint("Horizontal", 8))
sketch15.addConstraint(Sketcher.Constraint("Vertical", 9))
sketch15.addConstraint(Sketcher.Constraint("Horizontal", 10))
sketch15.addConstraint(Sketcher.Constraint("Vertical", 12))
sketch15.addConstraint(Sketcher.Constraint("Horizontal", 14))
sketch15.addConstraint(Sketcher.Constraint("Vertical", 15))
sketch15.addConstraint(Sketcher.Constraint("PointOnObject", 8, 2, -2))
sketch15.addConstraint(Sketcher.Constraint("PointOnObject", 14, 2, -2))
sketch15.addConstraint(Sketcher.Constraint("Parallel", 0, 3))
sketch15.addConstraint(Sketcher.Constraint("Parallel", 1, 4))
sketch15.addConstraint(Sketcher.Constraint("Horizontal", 0, 2, 3, 2))
sketch15.addConstraint(Sketcher.Constraint("Horizontal", 8, 2, 11, 2))
sketch15.addConstraint(Sketcher.Constraint("Horizontal", 6, 2, 12, 2))
sketch15.addConstraint(Sketcher.Constraint("Vertical", 2, 2, 4, 2))
sketch15.addConstraint(Sketcher.Constraint("Vertical", 1, 2, 5, 2))
sketch15.addConstraint(Sketcher.Constraint("Vertical", 10, 2, 13, 2))
sketch15.addConstraint(Sketcher.Constraint("Equal", 9, 15))
sketch15.addConstraint(Sketcher.Constraint("DistanceX", 6, 1, 6, 2, 48.0))
sketch15.addConstraint(Sketcher.Constraint("DistanceX", 10, 1, 10, 2, 80.0))
sketch15.addConstraint(Sketcher.Constraint("DistanceY", 7, 2, 7, 1, 30.0))
sketch15.addConstraint(Sketcher.Constraint("Angle", 0, Q("-120 deg")))
sketch15.addConstraint(Sketcher.Constraint("DistanceY", 9, 2, 9, 1, 12.5))
sketch15.addConstraint(Sketcher.Constraint("DistanceY", 0, 2, -1, 1, 85.0))
sketch15.addConstraint(Sketcher.Constraint("DistanceY", 6, 2, -1, 1, 70.0))
sketch15.addConstraint(Sketcher.Constraint("DistanceX", -1, 1, 11, 2, 120.0))
sketch15.addConstraint(Sketcher.Constraint("DistanceY", 2, 2, 4, 2, 17.5))
sketch15.addConstraint(Sketcher.Constraint("DistanceX", 2, 1, 2, 2, 10.10363))
sketch15.addConstraint(Sketcher.Constraint("DistanceX", -1, 1, 0, 2, 19.89637))
pocket9 = doc.addObject("PartDesign::Pocket", "Pocket008")
body.addObject(pocket9)
pocket9.Profile = sketch15
pocket9.Length = 8

sketch16 = doc.addObject("Sketcher::SketchObject", "Sketch015")
body.addObject(sketch16)
sketch16.AttachmentSupport = (doc.YZ_Plane, [""])
sketch16.MapMode = "FlatFace"
sketch16.AttachmentOffset = App.Placement(Vector(0, 0, 56), App.Rotation())
sketch16.addGeometry(Part.Circle(Vector(30, -85, 0), Vector(0, 0, 1), 6), False)
sketch16.addConstraint(Sketcher.Constraint("Diameter", 0, 11.0))
sketch16.addConstraint(Sketcher.Constraint("DistanceX", -1, 1, 0, 3, 30.0))
sketch16.addConstraint(Sketcher.Constraint("DistanceY", 0, 3, -1, 1, 85.0))
pocket10 = doc.addObject("PartDesign::Pocket", "Pocket009")
body.addObject(pocket10)
pocket10.Profile = sketch16
pocket10.Length = 12
doc.recompute()

datumplane = doc.addObject("PartDesign::Plane", "DatumPlane")
body.addObject(datumplane)
datumplane.AttachmentSupport = (doc.YZ_Plane, [""])
datumplane.MapMode = "FlatFace"
datumplane.AttachmentOffset = App.Placement(Vector(0, 0, 28), App.Rotation())
mirrored = doc.addObject("PartDesign::Mirrored", "Mirrored")
body.addObject(mirrored)
mirrored.Originals = [pad6]
mirrored.MirrorPlane = (datumplane, [""])
body.Tip = mirrored
doc.recompute()

datumplane2 = doc.addObject("PartDesign::Plane", "DatumPlane001")
body.addObject(datumplane2)
datumplane2.AttachmentSupport = (doc.YZ_Plane, [""])
datumplane2.MapMode = "FlatFace"
datumplane2.AttachmentOffset = App.Placement(Vector(0, 0, 28), App.Rotation())
mirrored2 = doc.addObject("PartDesign::Mirrored", "Mirrored001")
body.addObject(mirrored2)
mirrored2.Originals = [pocket9, pocket10]
mirrored2.MirrorPlane = (datumplane2, [""])
body.Tip = mirrored2
doc.recompute()

chamfer = doc.addObject("PartDesign::Chamfer", "Chamfer")
body.addObject(chamfer)
chamfer.Base = (mirrored2, edges_at(mirrored2, [
    (56, 40, -112.5),
    (50.089, 40, -170),
    (56, 40, -57.5),
    (50, 40, 0),
    (0, 40, -57.5),
    (6, 40, 0),
    (0, 40, -112.5),
    (5.911, 40, -170),
    (64, 24, -100),
    (64, 24, -70),
    (-8, 24, -70),
    (-8, 24, -100),
]))
chamfer.Size = 2

sketch17 = doc.addObject("Sketcher::SketchObject", "Sketch016")
body.addObject(sketch17)
sketch17.AttachmentSupport = (doc.XZ_Plane, [""])
sketch17.MapMode = "FlatFace"
sketch17.AttachmentOffset = App.Placement(Vector(0, 0, -13), App.Rotation())
sketch17.addGeometry(Part.LineSegment(Vector(19, -138, 0), Vector(19, -122, 0)), False)
sketch17.addGeometry(Part.LineSegment(Vector(19, -122, 0), Vector(39, -122, 0)), False)
sketch17.addGeometry(Part.LineSegment(Vector(39, -122, 0), Vector(39, -138, 0)), False)
sketch17.addGeometry(Part.LineSegment(Vector(39, -138, 0), Vector(19, -138, 0)), False)
sketch17.addGeometry(Part.LineSegment(Vector(19, -48, 0), Vector(19, -32, 0)), False)
sketch17.addGeometry(Part.LineSegment(Vector(19, -32, 0), Vector(39, -32, 0)), False)
sketch17.addGeometry(Part.LineSegment(Vector(39, -32, 0), Vector(39, -48, 0)), False)
sketch17.addGeometry(Part.LineSegment(Vector(39, -48, 0), Vector(19, -48, 0)), False)
sketch17.addConstraint(Sketcher.Constraint("Coincident", 0, 2, 1, 1))
sketch17.addConstraint(Sketcher.Constraint("Coincident", 1, 2, 2, 1))
sketch17.addConstraint(Sketcher.Constraint("Coincident", 2, 2, 3, 1))
sketch17.addConstraint(Sketcher.Constraint("Coincident", 3, 2, 0, 1))
sketch17.addConstraint(Sketcher.Constraint("Coincident", 4, 2, 5, 1))
sketch17.addConstraint(Sketcher.Constraint("Coincident", 5, 2, 6, 1))
sketch17.addConstraint(Sketcher.Constraint("Coincident", 6, 2, 7, 1))
sketch17.addConstraint(Sketcher.Constraint("Coincident", 7, 2, 4, 1))
sketch17.addConstraint(Sketcher.Constraint("Vertical", 0))
sketch17.addConstraint(Sketcher.Constraint("Horizontal", 1))
sketch17.addConstraint(Sketcher.Constraint("Vertical", 2))
sketch17.addConstraint(Sketcher.Constraint("Horizontal", 3))
sketch17.addConstraint(Sketcher.Constraint("Vertical", 4))
sketch17.addConstraint(Sketcher.Constraint("Horizontal", 5))
sketch17.addConstraint(Sketcher.Constraint("Vertical", 6))
sketch17.addConstraint(Sketcher.Constraint("Horizontal", 7))
sketch17.addConstraint(Sketcher.Constraint("Vertical", 3, 2, 4, 2))
sketch17.addConstraint(Sketcher.Constraint("Vertical", 2, 2, 5, 2))
sketch17.addConstraint(Sketcher.Constraint("Equal", 2, 4))
sketch17.addConstraint(Sketcher.Constraint("DistanceX", 1, 1, 1, 2, 20.0))
sketch17.addConstraint(Sketcher.Constraint("DistanceY", 0, 1, 0, 2, 15.0))
sketch17.addConstraint(Sketcher.Constraint("DistanceY", 0, 2, 4, 2, 90.0))
sketch17.addConstraint(Sketcher.Constraint("DistanceY", 0, 2, -1, 1, 122.5))
sketch17.addConstraint(Sketcher.Constraint("DistanceX", -1, 1, 0, 2, 18.591981))
pocket11 = doc.addObject("PartDesign::Pocket", "Pocket010")
body.addObject(pocket11)
pocket11.Profile = sketch17
pocket11.Length = 13
pocket11.Reversed = True
doc.recompute()

fillet = doc.addObject("PartDesign::Fillet", "Fillet")
body.addObject(fillet)
fillet.Base = (pocket11, edges_at(pocket11, [
    (18.592, 6.5, -122.5),
    (18.592, 6.5, -137.5),
    (38.592, 6.5, -137.5),
    (38.592, 6.5, -122.5),
    (38.592, 6.5, -47.5),
    (38.592, 6.5, -32.5),
    (18.592, 6.5, -32.5),
    (18.592, 6.5, -47.5),
]))
fillet.Radius = 3
doc.recompute()

fillet2 = doc.addObject("PartDesign::Fillet", "Fillet001")
body.addObject(fillet2)
fillet2.Base = (fillet, edges_at(fillet, [
    (50, 120, -70),
    (50, 120, -100),
    (6, 120, -70),
    (6, 120, -100),
]))
fillet2.Radius = 3
doc.recompute()

boolean2 = doc.addObject("PartDesign::Boolean", "Boolean001")
body2.addObject(boolean2)
boolean2.Type = "Cut"
boolean2.addObjects([body3])

doc.recompute()
